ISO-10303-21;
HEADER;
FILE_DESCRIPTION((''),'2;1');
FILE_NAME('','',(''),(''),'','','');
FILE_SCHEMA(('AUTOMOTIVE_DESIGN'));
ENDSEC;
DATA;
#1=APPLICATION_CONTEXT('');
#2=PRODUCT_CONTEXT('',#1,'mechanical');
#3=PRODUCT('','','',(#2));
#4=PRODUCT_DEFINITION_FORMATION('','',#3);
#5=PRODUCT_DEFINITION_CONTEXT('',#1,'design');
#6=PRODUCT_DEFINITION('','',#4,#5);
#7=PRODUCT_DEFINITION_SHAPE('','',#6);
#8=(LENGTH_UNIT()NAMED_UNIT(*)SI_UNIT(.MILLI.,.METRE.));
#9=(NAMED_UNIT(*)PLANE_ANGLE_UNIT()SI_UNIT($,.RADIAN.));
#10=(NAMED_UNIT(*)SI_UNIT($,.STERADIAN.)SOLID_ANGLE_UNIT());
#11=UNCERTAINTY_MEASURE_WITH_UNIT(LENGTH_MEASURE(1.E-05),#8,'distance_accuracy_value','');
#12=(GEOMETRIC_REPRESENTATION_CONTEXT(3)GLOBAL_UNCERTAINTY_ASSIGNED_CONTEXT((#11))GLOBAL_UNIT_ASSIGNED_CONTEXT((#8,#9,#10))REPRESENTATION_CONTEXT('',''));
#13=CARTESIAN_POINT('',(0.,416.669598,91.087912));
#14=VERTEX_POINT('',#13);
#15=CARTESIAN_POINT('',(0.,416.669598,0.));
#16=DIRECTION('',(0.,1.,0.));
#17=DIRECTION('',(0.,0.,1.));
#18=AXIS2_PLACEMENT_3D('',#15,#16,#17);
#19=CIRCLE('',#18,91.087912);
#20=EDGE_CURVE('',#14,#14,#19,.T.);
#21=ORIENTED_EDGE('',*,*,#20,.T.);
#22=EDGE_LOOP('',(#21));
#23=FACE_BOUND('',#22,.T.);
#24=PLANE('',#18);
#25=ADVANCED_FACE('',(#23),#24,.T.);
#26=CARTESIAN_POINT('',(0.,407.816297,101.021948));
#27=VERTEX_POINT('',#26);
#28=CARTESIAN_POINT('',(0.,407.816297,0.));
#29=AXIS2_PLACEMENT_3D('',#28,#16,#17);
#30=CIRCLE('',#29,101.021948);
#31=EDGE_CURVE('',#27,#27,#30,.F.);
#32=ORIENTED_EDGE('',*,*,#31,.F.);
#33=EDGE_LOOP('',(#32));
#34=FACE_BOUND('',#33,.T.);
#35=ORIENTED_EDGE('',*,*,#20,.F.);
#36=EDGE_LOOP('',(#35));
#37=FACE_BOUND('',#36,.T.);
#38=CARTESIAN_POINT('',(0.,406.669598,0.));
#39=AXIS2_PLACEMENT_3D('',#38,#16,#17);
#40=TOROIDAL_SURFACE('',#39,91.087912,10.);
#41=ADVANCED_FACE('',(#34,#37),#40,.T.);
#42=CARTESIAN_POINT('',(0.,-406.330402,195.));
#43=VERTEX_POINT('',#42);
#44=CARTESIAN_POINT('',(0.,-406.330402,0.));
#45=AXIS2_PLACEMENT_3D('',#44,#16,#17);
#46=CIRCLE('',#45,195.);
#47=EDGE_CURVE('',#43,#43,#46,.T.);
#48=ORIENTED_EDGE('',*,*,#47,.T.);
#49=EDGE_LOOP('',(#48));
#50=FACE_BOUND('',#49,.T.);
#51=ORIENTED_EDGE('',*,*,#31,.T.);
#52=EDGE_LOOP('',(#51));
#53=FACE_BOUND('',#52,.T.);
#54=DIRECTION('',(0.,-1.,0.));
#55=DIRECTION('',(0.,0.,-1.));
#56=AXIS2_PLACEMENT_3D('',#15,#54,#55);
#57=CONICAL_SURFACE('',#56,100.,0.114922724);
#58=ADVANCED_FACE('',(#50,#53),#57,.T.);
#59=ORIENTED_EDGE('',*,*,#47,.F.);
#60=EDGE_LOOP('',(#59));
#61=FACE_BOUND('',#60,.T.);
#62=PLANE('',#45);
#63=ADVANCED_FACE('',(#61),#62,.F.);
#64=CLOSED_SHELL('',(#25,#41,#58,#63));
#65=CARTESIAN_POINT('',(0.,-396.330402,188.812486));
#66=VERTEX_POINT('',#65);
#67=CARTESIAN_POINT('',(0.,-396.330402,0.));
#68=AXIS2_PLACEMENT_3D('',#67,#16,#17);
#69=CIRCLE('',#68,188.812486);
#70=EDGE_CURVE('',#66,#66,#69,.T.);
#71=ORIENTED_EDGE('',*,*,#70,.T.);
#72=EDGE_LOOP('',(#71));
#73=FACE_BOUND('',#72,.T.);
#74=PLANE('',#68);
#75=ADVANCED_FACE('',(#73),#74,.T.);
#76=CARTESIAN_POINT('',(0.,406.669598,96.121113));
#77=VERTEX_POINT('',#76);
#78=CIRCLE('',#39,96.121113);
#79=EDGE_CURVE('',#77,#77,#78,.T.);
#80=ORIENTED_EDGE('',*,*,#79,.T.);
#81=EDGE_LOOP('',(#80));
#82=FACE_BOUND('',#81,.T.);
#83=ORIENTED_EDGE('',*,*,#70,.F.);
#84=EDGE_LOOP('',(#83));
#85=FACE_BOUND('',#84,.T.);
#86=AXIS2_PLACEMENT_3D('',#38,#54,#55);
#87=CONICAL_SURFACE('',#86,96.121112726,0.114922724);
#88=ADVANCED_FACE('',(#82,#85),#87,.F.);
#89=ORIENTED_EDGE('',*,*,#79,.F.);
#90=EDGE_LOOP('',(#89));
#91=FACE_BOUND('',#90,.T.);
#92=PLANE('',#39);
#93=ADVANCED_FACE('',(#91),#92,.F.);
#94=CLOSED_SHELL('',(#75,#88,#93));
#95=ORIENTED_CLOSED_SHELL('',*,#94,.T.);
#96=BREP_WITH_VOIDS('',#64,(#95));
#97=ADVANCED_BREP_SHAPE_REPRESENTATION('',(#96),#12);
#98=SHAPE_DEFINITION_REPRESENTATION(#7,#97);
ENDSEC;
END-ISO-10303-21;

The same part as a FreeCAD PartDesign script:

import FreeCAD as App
import Part
import Sketcher

V = App.Vector


def edges_at(feature, points):
    """Names of the edges that pass closest to the given points."""
    edges = feature.Shape.Edges
    near = lambda p: min(range(len(edges)), key=lambda i: edges[i].distToShape(Part.Vertex(*p))[0])
    return sorted({f"Edge{near(p) + 1}" for p in points})


def add_polygon(sketch, points):
    """Adds a closed chain of lines whose ends are joined by coincident constraints."""
    first, n = sketch.GeometryCount, len(points)
    for a, b in zip(points, points[1:] + points[:1]):
        sketch.addGeometry(Part.LineSegment(App.Vector(*a, 0), App.Vector(*b, 0)), False)
    for i in range(n):
        sketch.addConstraint(Sketcher.Constraint("Coincident", first + i, 2, first + (i + 1) % n, 1))

doc = App.newDocument("Part")
body = doc.addObject("PartDesign::Body", "Body")

sketch1 = body.newObject("Sketcher::SketchObject", "Sketch")
sketch1.AttachmentSupport = (doc.getObject("XY_Plane"), [""])
sketch1.MapMode = "FlatFace"
add_polygon(sketch1, [(0, 407), (0, 417), (-100, 417), (-195, -406), (0, -406), (0, -396), (-189, -396), (-96, 407)])
sketch1.addConstraint(Sketcher.Constraint("Vertical", 0))
sketch1.addConstraint(Sketcher.Constraint("Horizontal", 1))
sketch1.addConstraint(Sketcher.Constraint("Horizontal", 3))
sketch1.addConstraint(Sketcher.Constraint("Vertical", 4))
sketch1.addConstraint(Sketcher.Constraint("Horizontal", 5))
sketch1.addConstraint(Sketcher.Constraint("Horizontal", 7))
sketch1.addConstraint(Sketcher.Constraint("PointOnObject", 0, 2, -2))
sketch1.addConstraint(Sketcher.Constraint("PointOnObject", 3, 2, -2))
sketch1.addConstraint(Sketcher.Constraint("Parallel", 2, 6))
sketch1.addConstraint(Sketcher.Constraint("Equal", 0, 4))
sketch1.addConstraint(Sketcher.Constraint("DistanceX", 1, 2, 1, 1, 100.0))
sketch1.addConstraint(Sketcher.Constraint("DistanceX", 3, 1, 3, 2, 195.0))
sketch1.addConstraint(Sketcher.Constraint("DistanceY", 0, 1, 0, 2, 10.0))
sketch1.addConstraint(Sketcher.Constraint("DistanceY", 2, 2, 1, 2, 823.0))
sketch1.addConstraint(Sketcher.Constraint("DistanceX", 5, 2, 5, 1, 188.812486))
sketch1.addConstraint(Sketcher.Constraint("DistanceY", -1, 1, 0, 2, 416.669598))
revolution = body.newObject("PartDesign::Revolution", "Revolution")
revolution.Profile = sketch1
revolution.ReferenceAxis = (sketch1, ["V_Axis"])
revolution.Angle = 360
doc.recompute()

fillet = body.newObject("PartDesign::Fillet", "Fillet")
fillet.Base = (revolution, edges_at(revolution, [(0, 416.67, -100)]))
fillet.Radius = 10

doc.recompute()
